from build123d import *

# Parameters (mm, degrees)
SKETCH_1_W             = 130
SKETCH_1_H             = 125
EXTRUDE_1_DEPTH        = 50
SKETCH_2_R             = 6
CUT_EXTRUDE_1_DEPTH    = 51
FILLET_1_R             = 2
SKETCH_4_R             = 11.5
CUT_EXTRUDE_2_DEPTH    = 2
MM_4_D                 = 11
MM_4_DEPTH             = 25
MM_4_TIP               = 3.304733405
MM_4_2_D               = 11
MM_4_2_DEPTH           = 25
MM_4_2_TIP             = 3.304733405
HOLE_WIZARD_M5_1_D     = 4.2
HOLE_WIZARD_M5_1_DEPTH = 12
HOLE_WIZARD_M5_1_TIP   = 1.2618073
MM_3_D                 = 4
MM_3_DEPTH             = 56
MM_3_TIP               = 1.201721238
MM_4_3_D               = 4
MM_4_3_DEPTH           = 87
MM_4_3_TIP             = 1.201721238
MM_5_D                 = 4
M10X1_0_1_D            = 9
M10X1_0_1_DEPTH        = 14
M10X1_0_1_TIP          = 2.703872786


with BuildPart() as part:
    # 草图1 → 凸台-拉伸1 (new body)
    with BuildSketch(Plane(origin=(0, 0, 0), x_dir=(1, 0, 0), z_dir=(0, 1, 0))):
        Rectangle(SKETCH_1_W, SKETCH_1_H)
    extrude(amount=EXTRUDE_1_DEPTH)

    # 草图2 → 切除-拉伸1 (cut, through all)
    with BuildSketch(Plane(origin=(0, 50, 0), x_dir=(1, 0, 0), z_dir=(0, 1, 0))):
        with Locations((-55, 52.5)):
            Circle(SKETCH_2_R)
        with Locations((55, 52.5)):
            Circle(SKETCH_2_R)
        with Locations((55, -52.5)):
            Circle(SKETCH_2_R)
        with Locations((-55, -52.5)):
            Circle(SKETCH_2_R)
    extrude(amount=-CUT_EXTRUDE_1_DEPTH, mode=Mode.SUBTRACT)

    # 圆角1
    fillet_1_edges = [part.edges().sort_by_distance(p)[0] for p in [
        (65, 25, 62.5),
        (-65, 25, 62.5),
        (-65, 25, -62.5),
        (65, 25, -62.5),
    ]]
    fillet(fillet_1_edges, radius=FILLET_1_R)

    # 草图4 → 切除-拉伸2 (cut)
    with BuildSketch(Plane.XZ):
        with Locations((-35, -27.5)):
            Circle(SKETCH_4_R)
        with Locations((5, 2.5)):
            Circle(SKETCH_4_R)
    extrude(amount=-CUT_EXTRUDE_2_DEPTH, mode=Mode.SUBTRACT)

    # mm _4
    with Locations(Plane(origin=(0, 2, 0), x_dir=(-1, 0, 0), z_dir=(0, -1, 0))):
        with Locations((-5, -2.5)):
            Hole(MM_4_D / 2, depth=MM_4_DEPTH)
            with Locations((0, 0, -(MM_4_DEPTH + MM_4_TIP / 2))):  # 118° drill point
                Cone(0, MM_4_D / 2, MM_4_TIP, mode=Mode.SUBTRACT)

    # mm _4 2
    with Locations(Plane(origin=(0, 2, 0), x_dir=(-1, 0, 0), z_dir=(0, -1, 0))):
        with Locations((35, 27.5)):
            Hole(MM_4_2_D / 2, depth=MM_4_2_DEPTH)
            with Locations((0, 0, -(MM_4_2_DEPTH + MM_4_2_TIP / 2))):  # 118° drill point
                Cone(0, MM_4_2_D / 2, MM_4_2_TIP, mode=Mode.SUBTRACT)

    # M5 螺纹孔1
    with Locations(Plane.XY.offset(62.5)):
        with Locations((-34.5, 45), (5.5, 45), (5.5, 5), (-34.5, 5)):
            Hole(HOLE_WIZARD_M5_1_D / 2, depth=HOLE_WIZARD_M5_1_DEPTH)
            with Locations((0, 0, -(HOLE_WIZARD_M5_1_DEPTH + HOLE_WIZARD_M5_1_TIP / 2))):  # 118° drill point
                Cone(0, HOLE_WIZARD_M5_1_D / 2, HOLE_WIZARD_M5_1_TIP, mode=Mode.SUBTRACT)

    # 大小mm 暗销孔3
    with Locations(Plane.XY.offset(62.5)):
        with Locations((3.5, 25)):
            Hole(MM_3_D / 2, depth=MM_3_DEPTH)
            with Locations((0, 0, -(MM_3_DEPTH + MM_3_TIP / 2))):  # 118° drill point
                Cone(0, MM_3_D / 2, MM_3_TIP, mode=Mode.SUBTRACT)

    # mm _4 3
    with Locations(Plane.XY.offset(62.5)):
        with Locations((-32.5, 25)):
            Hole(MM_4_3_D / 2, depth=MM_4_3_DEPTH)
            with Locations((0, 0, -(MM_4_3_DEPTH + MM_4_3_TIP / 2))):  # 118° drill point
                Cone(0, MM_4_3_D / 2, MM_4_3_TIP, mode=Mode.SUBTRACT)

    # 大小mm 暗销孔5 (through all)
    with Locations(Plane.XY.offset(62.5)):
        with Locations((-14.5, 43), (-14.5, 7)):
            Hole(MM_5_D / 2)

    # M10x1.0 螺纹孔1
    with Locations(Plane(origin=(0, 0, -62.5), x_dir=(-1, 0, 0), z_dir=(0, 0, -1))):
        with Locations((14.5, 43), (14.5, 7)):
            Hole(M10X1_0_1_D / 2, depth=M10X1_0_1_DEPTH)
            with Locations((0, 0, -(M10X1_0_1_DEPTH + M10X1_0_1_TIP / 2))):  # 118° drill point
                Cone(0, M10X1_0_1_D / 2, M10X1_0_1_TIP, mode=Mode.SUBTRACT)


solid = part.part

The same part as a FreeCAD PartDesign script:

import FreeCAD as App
import Part
import Sketcher

V = App.Vector
Q = App.Units.Quantity


def edges_at(feature, points):
    """Names of the edges that pass closest to the given points."""
    edges = feature.Shape.Edges
    near = lambda p: min(range(len(edges)), key=lambda i: edges[i].distToShape(Part.Vertex(*p))[0])
    return sorted({f"Edge{near(p) + 1}" for p in points})

doc = App.newDocument("Part")
params = doc.addObject("Spreadsheet::Sheet", "Params")
for row, (alias, value) in enumerate([
    ("sketch1_width", "130 mm"),
    ("sketch1_height", "125 mm"),
    ("pad1_length", "50 mm"),
    ("sketch2_diameter", "12 mm"),
    ("fillet_radius", "2 mm"),
    ("sketch3_diameter", "23 mm"),
    ("pocket2_length", "2 mm"),
    ("sketch4_diameter", "11 mm"),
    ("hole_diameter", "11 mm"),
    ("hole_depth", "25 mm"),
    ("sketch5_diameter", "11 mm"),
    ("hole2_diameter", "11 mm"),
    ("hole2_depth", "25 mm"),
    ("sketch6_diameter", "4.2 mm"),
    ("hole3_diameter", "4.2 mm"),
    ("hole3_depth", "12 mm"),
    ("sketch7_diameter", "4 mm"),
    ("hole4_diameter", "4 mm"),
    ("hole4_depth", "56 mm"),
    ("sketch8_diameter", "4 mm"),
    ("hole5_diameter", "4 mm"),
    ("hole5_depth", "87 mm"),
    ("sketch9_diameter", "4 mm"),
    ("hole6_diameter", "4 mm"),
    ("sketch10_diameter", "9 mm"),
    ("hole7_diameter", "9 mm"),
    ("hole7_depth", "14 mm"),
], start=1):
    params.set(f"A{row}", alias)
    params.set(f"B{row}", "=" + value)
    params.setAlias(f"B{row}", alias)

body = doc.addObject("PartDesign::Body", "Body")

# Sketch on XZ plane
sketch1 = doc.addObject("Sketcher::SketchObject", "Sketch")
body.addObject(sketch1)
sketch1.AttachmentSupport = (doc.XZ_Plane, [""])
sketch1.MapMode = "FlatFace"
sketch1.addGeometry(Part.LineSegment(V(-65, -62.5, 0), V(-65, 62.5, 0)), False)
sketch1.addGeometry(Part.LineSegment(V(-65, 62.5, 0), V(65, 62.5, 0)), False)
sketch1.addGeometry(Part.LineSegment(V(65, 62.5, 0), V(65, -62.5, 0)), False)
sketch1.addGeometry(Part.LineSegment(V(65, -62.5, 0), V(-65, -62.5, 0)), False)
sketch1.addConstraint(Sketcher.Constraint("Coincident", 0, 2, 1, 1))
sketch1.addConstraint(Sketcher.Constraint("Coincident", 1, 2, 2, 1))
sketch1.addConstraint(Sketcher.Constraint("Coincident", 2, 2, 3, 1))
sketch1.addConstraint(Sketcher.Constraint("Coincident", 3, 2, 0, 1))
sketch1.addConstraint(Sketcher.Constraint("Vertical", 0))
sketch1.addConstraint(Sketcher.Constraint("Horizontal", 1))
sketch1.addConstraint(Sketcher.Constraint("Vertical", 2))
sketch1.addConstraint(Sketcher.Constraint("Horizontal", 3))
sketch1.addConstraint(Sketcher.Constraint("Symmetric", 0, 2, 2, 2, -1, 1))
sketch1.addConstraint(Sketcher.Constraint("DistanceX", 1, 1, 1, 2, Q("130 mm")))
sketch1.addConstraint(Sketcher.Constraint("DistanceY", 0, 1, 0, 2, Q("125 mm")))
sketch1.setExpression("Constraints[9]", "Params.sketch1_width")
sketch1.setExpression("Constraints[10]", "Params.sketch1_height")
pad1 = doc.addObject("PartDesign::Pad", "Pad")
body.addObject(pad1)
pad1.Profile = sketch1
pad1.setExpression("Length", "Params.pad1_length")
pad1.Reversed = True

# Sketch on XZ plane
sketch2 = doc.addObject("Sketcher::SketchObject", "Sketch001")
body.addObject(sketch2)
sketch2.AttachmentSupport = (doc.XZ_Plane, [""])
sketch2.MapMode = "FlatFace"
sketch2.AttachmentOffset = App.Placement(V(0, 0, -50), App.Rotation())
sketch2.addGeometry(Part.Circle(V(-55, -52.5, 0), V(0, 0, 1), 6), False)
sketch2.addGeometry(Part.Circle(V(55, -52.5, 0), V(0, 0, 1), 6), False)
sketch2.addGeometry(Part.Circle(V(55, 52.5, 0), V(0, 0, 1), 6), False)
sketch2.addGeometry(Part.Circle(V(-55, 52.5, 0), V(0, 0, 1), 6), False)
sketch2.addConstraint(Sketcher.Constraint("Equal", 0, 1))
sketch2.addConstraint(Sketcher.Constraint("Equal", 1, 2))
sketch2.addConstraint(Sketcher.Constraint("Equal", 2, 3))
sketch2.addConstraint(Sketcher.Constraint("Symmetric", 0, 3, 2, 3, -1, 1))
sketch2.addConstraint(Sketcher.Constraint("Symmetric", 1, 3, 3, 3, -1, 1))
sketch2.addConstraint(Sketcher.Constraint("Symmetric", 0, 3, 1, 3, -2))
sketch2.addConstraint(Sketcher.Constraint("Diameter", 0, Q("12 mm")))
sketch2.addConstraint(Sketcher.Constraint("DistanceX", 0, 3, -1, 1, Q("55 mm")))
sketch2.addConstraint(Sketcher.Constraint("DistanceY", 1, 3, 2, 3, Q("105 mm")))
sketch2.setExpression("Constraints[6]", "Params.sketch2_diameter")
pocket1 = doc.addObject("PartDesign::Pocket", "Pocket")
body.addObject(pocket1)
pocket1.Profile = sketch2
pocket1.Type = "ThroughAll"
pocket1.Reversed = True
doc.recompute()

fillet = doc.addObject("PartDesign::Fillet", "Fillet")
body.addObject(fillet)
fillet.Base = (pocket1, edges_at(pocket1, [
    (65, 25, 62.5),
    (-65, 25, 62.5),
    (-65, 25, -62.5),
    (65, 25, -62.5),
]))
fillet.setExpression("Radius", "Params.fillet_radius")

# Sketch on XZ plane
sketch3 = doc.addObject("Sketcher::SketchObject", "Sketch002")
body.addObject(sketch3)
sketch3.AttachmentSupport = (doc.XZ_Plane, [""])
sketch3.MapMode = "FlatFace"
sketch3.addGeometry(Part.Circle(V(-35, -27.5, 0), V(0, 0, 1), 11.5), False)
sketch3.addGeometry(Part.Circle(V(5, 2.5, 0), V(0, 0, 1), 11.5), False)
sketch3.addConstraint(Sketcher.Constraint("Equal", 0, 1))
sketch3.addConstraint(Sketcher.Constraint("Diameter", 0, Q("23 mm")))
sketch3.addConstraint(Sketcher.Constraint("DistanceX", 0, 3, -1, 1, Q("35 mm")))
sketch3.addConstraint(Sketcher.Constraint("DistanceX", -1, 1, 1, 3, Q("5 mm")))
sketch3.addConstraint(Sketcher.Constraint("DistanceY", 0, 3, 1, 3, Q("30 mm")))
sketch3.addConstraint(Sketcher.Constraint("DistanceY", 0, 3, -1, 1, Q("27.5 mm")))
sketch3.setExpression("Constraints[1]", "Params.sketch3_diameter")
pocket2 = doc.addObject("PartDesign::Pocket", "Pocket001")
body.addObject(pocket2)
pocket2.Profile = sketch3
pocket2.setExpression("Length", "Params.pocket2_length")

# Sketch on XZ plane
sketch4 = doc.addObject("Sketcher::SketchObject", "Sketch003")
body.addObject(sketch4)
sketch4.AttachmentSupport = (doc.XZ_Plane, [""])
sketch4.MapMode = "FlatFace"
sketch4.AttachmentOffset = App.Placement(V(0, 0, -2), App.Rotation())
sketch4.addGeometry(Part.Circle(V(5, 2.5, 0), V(0, 0, 1), 5.5), False)
sketch4.addConstraint(Sketcher.Constraint("Diameter", 0, Q("11 mm")))
sketch4.addConstraint(Sketcher.Constraint("DistanceX", -1, 1, 0, 3, Q("5 mm")))
sketch4.addConstraint(Sketcher.Constraint("DistanceY", -1, 1, 0, 3, Q("2.5 mm")))
sketch4.setExpression("Constraints[0]", "Params.sketch4_diameter")
doc.recompute()
hole = doc.addObject("PartDesign::Hole", "Hole")
body.addObject(hole)
hole.Profile = sketch4
hole.ThreadType = "None"
hole.setExpression("Diameter", "Params.hole_diameter")
hole.DepthType = "Dimension"
hole.setExpression("Depth", "Params.hole_depth")
hole.DrillPoint = "Angled"
hole.DrillPointAngle = 118

# Sketch on XZ plane
sketch5 = doc.addObject("Sketcher::SketchObject", "Sketch004")
body.addObject(sketch5)
sketch5.AttachmentSupport = (doc.XZ_Plane, [""])
sketch5.MapMode = "FlatFace"
sketch5.AttachmentOffset = App.Placement(V(0, 0, -2), App.Rotation())
sketch5.addGeometry(Part.Circle(V(-35, -27.5, 0), V(0, 0, 1), 5.5), False)
sketch5.addConstraint(Sketcher.Constraint("Diameter", 0, Q("11 mm")))
sketch5.addConstraint(Sketcher.Constraint("DistanceX", 0, 3, -1, 1, Q("35 mm")))
sketch5.addConstraint(Sketcher.Constraint("DistanceY", 0, 3, -1, 1, Q("27.5 mm")))
sketch5.setExpression("Constraints[0]", "Params.sketch5_diameter")
doc.recompute()
hole2 = doc.addObject("PartDesign::Hole", "Hole001")
body.addObject(hole2)
hole2.Profile = sketch5
hole2.ThreadType = "None"
hole2.setExpression("Diameter", "Params.hole2_diameter")
hole2.DepthType = "Dimension"
hole2.setExpression("Depth", "Params.hole2_depth")
hole2.DrillPoint = "Angled"
hole2.DrillPointAngle = 118

# Sketch on XY plane
sketch6 = doc.addObject("Sketcher::SketchObject", "Sketch005")
body.addObject(sketch6)
sketch6.AttachmentSupport = (doc.XY_Plane, [""])
sketch6.MapMode = "FlatFace"
sketch6.AttachmentOffset = App.Placement(V(0, 0, 62.5), App.Rotation())
sketch6.addGeometry(Part.Circle(V(-34.5, 45, 0), V(0, 0, 1), 2.1), False)
sketch6.addGeometry(Part.Circle(V(5.5, 45, 0), V(0, 0, 1), 2.1), False)
sketch6.addGeometry(Part.Circle(V(5.5, 5, 0), V(0, 0, 1), 2.1), False)
sketch6.addGeometry(Part.Circle(V(-34.5, 5, 0), V(0, 0, 1), 2.1), False)
sketch6.addConstraint(Sketcher.Constraint("Equal", 0, 1))
sketch6.addConstraint(Sketcher.Constraint("Equal", 1, 2))
sketch6.addConstraint(Sketcher.Constraint("Equal", 2, 3))
sketch6.addConstraint(Sketcher.Constraint("Horizontal", 0, 3, 1, 3))
sketch6.addConstraint(Sketcher.Constraint("Horizontal", 2, 3, 3, 3))
sketch6.addConstraint(Sketcher.Constraint("Vertical", 1, 3, 2, 3))
sketch6.addConstraint(Sketcher.Constraint("Vertical", 0, 3, 3, 3))
sketch6.addConstraint(Sketcher.Constraint("Diameter", 0, Q("4.2 mm")))
sketch6.addConstraint(Sketcher.Constraint("DistanceY", -1, 1, 0, 3, Q("45 mm")))
sketch6.addConstraint(Sketcher.Constraint("DistanceY", -1, 1, 2, 3, Q("5 mm")))
sketch6.addConstraint(Sketcher.Constraint("DistanceX", 0, 3, 1, 3, Q("40 mm")))
sketch6.addConstraint(Sketcher.Constraint("DistanceX", 0, 3, -1, 1, Q("34.5 mm")))
sketch6.setExpression("Constraints[7]", "Params.sketch6_diameter")
doc.recompute()
hole3 = doc.addObject("PartDesign::Hole", "Hole002")
body.addObject(hole3)
hole3.Profile = sketch6
hole3.ThreadType = "None"
hole3.setExpression("Diameter", "Params.hole3_diameter")
hole3.DepthType = "Dimension"
hole3.setExpression("Depth", "Params.hole3_depth")
hole3.DrillPoint = "Angled"
hole3.DrillPointAngle = 118

# Sketch on XY plane
sketch7 = doc.addObject("Sketcher::SketchObject", "Sketch006")
body.addObject(sketch7)
sketch7.AttachmentSupport = (doc.XY_Plane, [""])
sketch7.MapMode = "FlatFace"
sketch7.AttachmentOffset = App.Placement(V(0, 0, 62.5), App.Rotation())
sketch7.addGeometry(Part.Circle(V(3.5, 25, 0), V(0, 0, 1), 2), False)
sketch7.addConstraint(Sketcher.Constraint("Diameter", 0, Q("4 mm")))
sketch7.addConstraint(Sketcher.Constraint("DistanceY", -1, 1, 0, 3, Q("25 mm")))
sketch7.addConstraint(Sketcher.Constraint("DistanceX", -1, 1, 0, 3, Q("3.5 mm")))
sketch7.setExpression("Constraints[0]", "Params.sketch7_diameter")
doc.recompute()
hole4 = doc.addObject("PartDesign::Hole", "Hole003")
body.addObject(hole4)
hole4.Profile = sketch7
hole4.ThreadType = "None"
hole4.setExpression("Diameter", "Params.hole4_diameter")
hole4.DepthType = "Dimension"
hole4.setExpression("Depth", "Params.hole4_depth")
hole4.DrillPoint = "Angled"
hole4.DrillPointAngle = 118

# Sketch on XY plane
sketch8 = doc.addObject("Sketcher::SketchObject", "Sketch007")
body.addObject(sketch8)
sketch8.AttachmentSupport = (doc.XY_Plane, [""])
sketch8.MapMode = "FlatFace"
sketch8.AttachmentOffset = App.Placement(V(0, 0, 62.5), App.Rotation())
sketch8.addGeometry(Part.Circle(V(-32.5, 25, 0), V(0, 0, 1), 2), False)
sketch8.addConstraint(Sketcher.Constraint("Diameter", 0, Q("4 mm")))
sketch8.addConstraint(Sketcher.Constraint("DistanceY", -1, 1, 0, 3, Q("25 mm")))
sketch8.addConstraint(Sketcher.Constraint("DistanceX", 0, 3, -1, 1, Q("32.5 mm")))
sketch8.setExpression("Constraints[0]", "Params.sketch8_diameter")
doc.recompute()
hole5 = doc.addObject("PartDesign::Hole", "Hole004")
body.addObject(hole5)
hole5.Profile = sketch8
hole5.ThreadType = "None"
hole5.setExpression("Diameter", "Params.hole5_diameter")
hole5.DepthType = "Dimension"
hole5.setExpression("Depth", "Params.hole5_depth")
hole5.DrillPoint = "Angled"
hole5.DrillPointAngle = 118

# Sketch on XY plane
sketch9 = doc.addObject("Sketcher::SketchObject", "Sketch008")
body.addObject(sketch9)
sketch9.AttachmentSupport = (doc.XY_Plane, [""])
sketch9.MapMode = "FlatFace"
sketch9.AttachmentOffset = App.Placement(V(0, 0, 62.5), App.Rotation())
sketch9.addGeometry(Part.Circle(V(-14.5, 43, 0), V(0, 0, 1), 2), False)
sketch9.addGeometry(Part.Circle(V(-14.5, 7, 0), V(0, 0, 1), 2), False)
sketch9.addConstraint(Sketcher.Constraint("Equal", 0, 1))
sketch9.addConstraint(Sketcher.Constraint("Vertical", 0, 3, 1, 3))
sketch9.addConstraint(Sketcher.Constraint("Diameter", 0, Q("4 mm")))
sketch9.addConstraint(Sketcher.Constraint("DistanceY", -1, 1, 0, 3, Q("43 mm")))
sketch9.addConstraint(Sketcher.Constraint("DistanceY", -1, 1, 1, 3, Q("7 mm")))
sketch9.addConstraint(Sketcher.Constraint("DistanceX", 0, 3, -1, 1, Q("14.5 mm")))
sketch9.setExpression("Constraints[2]", "Params.sketch9_diameter")
doc.recompute()
hole6 = doc.addObject("PartDesign::Hole", "Hole005")
body.addObject(hole6)
hole6.Profile = sketch9
hole6.ThreadType = "None"
hole6.setExpression("Diameter", "Params.hole6_diameter")
hole6.DepthType = "ThroughAll"

# Sketch on XY plane
sketch10 = doc.addObject("Sketcher::SketchObject", "Sketch009")
body.addObject(sketch10)
sketch10.AttachmentSupport = (doc.XY_Plane, [""])
sketch10.MapMode = "FlatFace"
sketch10.AttachmentOffset = App.Placement(V(0, 0, -62.5), App.Rotation())
sketch10.addGeometry(Part.Circle(V(-14.5, 43, 0), V(0, 0, 1), 4.5), False)
sketch10.addGeometry(Part.Circle(V(-14.5, 7, 0), V(0, 0, 1), 4.5), False)
sketch10.addConstraint(Sketcher.Constraint("Equal", 0, 1))
sketch10.addConstraint(Sketcher.Constraint("Vertical", 0, 3, 1, 3))
sketch10.addConstraint(Sketcher.Constraint("Diameter", 0, Q("9 mm")))
sketch10.addConstraint(Sketcher.Constraint("DistanceY", -1, 1, 0, 3, Q("43 mm")))
sketch10.addConstraint(Sketcher.Constraint("DistanceY", -1, 1, 1, 3, Q("7 mm")))
sketch10.addConstraint(Sketcher.Constraint("DistanceX", 0, 3, -1, 1, Q("14.5 mm")))
sketch10.setExpression("Constraints[2]", "Params.sketch10_diameter")
doc.recompute()
hole7 = doc.addObject("PartDesign::Hole", "Hole006")
body.addObject(hole7)
hole7.Profile = sketch10
hole7.ThreadType = "None"
hole7.setExpression("Diameter", "Params.hole7_diameter")
hole7.DepthType = "Dimension"
hole7.setExpression("Depth", "Params.hole7_depth")
hole7.DrillPoint = "Angled"
hole7.DrillPointAngle = 118
hole7.Reversed = True

doc.recompute()
